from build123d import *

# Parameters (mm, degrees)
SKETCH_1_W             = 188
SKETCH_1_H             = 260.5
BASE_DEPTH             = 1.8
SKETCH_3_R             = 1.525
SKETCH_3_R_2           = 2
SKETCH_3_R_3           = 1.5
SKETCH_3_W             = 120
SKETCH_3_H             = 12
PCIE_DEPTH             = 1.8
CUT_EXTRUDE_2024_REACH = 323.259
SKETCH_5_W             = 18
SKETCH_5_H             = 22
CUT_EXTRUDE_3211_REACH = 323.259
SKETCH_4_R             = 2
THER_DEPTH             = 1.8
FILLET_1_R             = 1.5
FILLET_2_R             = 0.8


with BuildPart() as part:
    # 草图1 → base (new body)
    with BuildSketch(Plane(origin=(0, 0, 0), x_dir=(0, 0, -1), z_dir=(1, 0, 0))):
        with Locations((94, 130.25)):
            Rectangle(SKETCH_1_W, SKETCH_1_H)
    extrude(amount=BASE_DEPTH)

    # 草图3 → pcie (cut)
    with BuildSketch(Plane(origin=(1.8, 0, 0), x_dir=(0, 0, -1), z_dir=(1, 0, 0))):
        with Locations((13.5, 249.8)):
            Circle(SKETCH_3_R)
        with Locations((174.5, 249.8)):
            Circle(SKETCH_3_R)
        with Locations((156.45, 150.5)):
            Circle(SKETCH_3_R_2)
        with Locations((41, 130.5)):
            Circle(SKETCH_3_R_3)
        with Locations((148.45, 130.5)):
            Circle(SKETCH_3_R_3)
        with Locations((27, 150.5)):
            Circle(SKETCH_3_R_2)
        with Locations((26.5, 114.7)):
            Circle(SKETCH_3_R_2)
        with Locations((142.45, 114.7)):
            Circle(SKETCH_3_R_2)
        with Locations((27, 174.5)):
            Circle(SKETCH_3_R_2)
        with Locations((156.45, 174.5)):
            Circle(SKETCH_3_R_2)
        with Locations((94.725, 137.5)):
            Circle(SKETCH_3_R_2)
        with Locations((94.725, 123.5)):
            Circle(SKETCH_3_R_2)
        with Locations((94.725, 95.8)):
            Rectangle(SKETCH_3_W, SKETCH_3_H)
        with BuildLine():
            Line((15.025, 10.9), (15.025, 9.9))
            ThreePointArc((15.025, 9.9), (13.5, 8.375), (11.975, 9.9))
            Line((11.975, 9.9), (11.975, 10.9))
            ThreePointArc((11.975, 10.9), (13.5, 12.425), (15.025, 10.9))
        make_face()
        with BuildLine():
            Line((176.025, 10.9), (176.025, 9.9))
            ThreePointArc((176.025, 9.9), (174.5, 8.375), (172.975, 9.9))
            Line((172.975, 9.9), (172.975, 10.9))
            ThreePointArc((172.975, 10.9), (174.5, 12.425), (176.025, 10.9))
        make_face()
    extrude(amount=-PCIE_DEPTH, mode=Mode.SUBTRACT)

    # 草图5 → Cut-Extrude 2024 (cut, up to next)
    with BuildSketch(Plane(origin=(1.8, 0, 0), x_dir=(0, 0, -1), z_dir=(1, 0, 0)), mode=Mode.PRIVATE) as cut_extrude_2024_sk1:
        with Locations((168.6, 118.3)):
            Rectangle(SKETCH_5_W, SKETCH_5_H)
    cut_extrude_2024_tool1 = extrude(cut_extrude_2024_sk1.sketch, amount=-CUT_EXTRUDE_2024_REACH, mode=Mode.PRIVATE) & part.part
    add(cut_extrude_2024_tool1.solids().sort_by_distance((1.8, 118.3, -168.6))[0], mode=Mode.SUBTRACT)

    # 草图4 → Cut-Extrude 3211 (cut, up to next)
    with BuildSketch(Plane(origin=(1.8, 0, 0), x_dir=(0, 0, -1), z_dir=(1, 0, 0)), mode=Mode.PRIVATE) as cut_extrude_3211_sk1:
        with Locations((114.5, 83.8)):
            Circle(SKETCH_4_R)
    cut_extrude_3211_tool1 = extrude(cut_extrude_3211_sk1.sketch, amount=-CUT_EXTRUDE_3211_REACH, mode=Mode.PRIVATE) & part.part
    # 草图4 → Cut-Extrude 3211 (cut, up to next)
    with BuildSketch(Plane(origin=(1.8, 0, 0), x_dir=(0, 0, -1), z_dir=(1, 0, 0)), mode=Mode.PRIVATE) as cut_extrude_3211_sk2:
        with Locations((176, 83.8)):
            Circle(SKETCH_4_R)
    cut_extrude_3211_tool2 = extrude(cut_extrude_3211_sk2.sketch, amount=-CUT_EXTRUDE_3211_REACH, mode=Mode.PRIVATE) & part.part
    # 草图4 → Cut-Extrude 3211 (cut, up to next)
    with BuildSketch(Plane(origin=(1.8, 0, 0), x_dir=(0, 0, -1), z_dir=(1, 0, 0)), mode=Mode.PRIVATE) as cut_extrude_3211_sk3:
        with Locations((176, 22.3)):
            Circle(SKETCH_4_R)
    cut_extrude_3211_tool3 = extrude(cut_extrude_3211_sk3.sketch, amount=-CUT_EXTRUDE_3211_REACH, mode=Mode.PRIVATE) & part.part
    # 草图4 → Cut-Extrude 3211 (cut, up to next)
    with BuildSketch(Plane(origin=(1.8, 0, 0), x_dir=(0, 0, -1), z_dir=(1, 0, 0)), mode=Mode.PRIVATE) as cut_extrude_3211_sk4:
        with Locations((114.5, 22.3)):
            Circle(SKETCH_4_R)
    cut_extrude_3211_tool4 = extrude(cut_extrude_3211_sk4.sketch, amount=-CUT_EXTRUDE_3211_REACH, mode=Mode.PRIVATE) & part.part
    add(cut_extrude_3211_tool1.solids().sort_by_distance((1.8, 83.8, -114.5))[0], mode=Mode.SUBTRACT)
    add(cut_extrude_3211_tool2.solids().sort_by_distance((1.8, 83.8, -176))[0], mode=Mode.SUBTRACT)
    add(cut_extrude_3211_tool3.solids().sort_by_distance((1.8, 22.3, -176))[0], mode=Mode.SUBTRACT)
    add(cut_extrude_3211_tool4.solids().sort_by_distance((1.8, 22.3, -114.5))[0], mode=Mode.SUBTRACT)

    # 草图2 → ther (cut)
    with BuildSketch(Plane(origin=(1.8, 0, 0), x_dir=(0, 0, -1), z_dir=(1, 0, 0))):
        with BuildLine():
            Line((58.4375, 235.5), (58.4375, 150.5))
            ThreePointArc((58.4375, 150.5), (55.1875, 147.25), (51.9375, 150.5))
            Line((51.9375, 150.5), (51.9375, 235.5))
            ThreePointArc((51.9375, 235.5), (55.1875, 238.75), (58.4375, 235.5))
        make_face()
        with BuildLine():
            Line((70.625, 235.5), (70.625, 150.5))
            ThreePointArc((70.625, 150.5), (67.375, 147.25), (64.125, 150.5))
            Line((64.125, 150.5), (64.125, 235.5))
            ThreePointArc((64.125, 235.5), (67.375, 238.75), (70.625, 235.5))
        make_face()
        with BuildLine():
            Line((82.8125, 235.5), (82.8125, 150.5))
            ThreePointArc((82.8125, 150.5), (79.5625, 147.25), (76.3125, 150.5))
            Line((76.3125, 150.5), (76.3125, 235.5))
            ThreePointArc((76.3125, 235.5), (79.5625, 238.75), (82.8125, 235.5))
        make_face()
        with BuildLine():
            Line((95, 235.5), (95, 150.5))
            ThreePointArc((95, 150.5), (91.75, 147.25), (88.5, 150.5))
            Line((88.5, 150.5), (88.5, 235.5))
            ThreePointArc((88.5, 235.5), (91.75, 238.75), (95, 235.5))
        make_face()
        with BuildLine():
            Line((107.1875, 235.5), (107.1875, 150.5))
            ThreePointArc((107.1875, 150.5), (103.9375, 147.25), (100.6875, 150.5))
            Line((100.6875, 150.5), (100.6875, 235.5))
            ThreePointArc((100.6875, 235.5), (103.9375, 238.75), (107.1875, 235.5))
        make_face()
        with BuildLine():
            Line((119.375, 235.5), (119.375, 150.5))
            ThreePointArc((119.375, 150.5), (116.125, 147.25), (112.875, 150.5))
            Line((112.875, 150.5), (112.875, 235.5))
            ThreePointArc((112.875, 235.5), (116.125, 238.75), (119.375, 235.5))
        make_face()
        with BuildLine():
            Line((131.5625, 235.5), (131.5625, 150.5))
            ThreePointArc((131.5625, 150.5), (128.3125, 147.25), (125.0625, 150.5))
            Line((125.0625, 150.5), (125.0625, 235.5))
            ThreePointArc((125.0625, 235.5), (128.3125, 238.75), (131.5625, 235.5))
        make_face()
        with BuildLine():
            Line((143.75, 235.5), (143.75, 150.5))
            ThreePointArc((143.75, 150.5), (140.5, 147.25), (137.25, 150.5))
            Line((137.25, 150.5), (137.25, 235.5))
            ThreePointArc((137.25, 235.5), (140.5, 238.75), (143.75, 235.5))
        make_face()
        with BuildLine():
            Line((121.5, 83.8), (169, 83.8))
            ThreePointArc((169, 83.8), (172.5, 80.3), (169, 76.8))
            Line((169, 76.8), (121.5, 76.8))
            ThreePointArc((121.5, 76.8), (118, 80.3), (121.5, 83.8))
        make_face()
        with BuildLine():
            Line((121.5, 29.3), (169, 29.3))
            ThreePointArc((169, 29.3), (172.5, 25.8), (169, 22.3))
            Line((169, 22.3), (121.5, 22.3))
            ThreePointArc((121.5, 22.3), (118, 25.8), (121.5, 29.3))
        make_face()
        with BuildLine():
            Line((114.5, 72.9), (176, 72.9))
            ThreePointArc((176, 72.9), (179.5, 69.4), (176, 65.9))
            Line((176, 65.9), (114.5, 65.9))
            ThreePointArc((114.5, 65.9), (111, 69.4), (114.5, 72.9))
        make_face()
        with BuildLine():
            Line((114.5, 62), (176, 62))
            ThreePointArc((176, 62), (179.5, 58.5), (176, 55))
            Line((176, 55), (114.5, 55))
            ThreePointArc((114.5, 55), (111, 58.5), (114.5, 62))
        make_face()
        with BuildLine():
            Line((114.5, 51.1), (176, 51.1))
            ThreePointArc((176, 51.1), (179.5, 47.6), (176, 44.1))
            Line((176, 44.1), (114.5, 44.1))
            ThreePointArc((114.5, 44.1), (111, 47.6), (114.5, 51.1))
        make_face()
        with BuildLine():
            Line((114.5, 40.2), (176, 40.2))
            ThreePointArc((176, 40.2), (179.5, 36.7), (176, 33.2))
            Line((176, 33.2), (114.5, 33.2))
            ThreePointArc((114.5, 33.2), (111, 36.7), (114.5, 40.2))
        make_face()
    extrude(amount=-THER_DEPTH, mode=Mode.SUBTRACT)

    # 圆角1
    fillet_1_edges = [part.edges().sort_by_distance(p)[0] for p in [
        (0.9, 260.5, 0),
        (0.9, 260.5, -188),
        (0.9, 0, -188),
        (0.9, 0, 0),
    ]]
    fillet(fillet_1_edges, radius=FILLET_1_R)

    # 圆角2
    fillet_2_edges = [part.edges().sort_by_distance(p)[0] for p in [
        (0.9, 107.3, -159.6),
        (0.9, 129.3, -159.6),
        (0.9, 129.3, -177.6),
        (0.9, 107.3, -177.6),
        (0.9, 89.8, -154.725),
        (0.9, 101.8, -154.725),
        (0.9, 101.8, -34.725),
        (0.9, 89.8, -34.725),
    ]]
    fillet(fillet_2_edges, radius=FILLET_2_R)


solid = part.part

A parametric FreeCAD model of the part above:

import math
import FreeCAD as App
import Part
import Sketcher
from FreeCAD import Vector
Q = App.Units.Quantity


def edges_at(feature, points):
    """Names of the edges that pass closest to the given points."""
    edges = feature.Shape.Edges
    near = lambda p: min(range(len(edges)), key=lambda i: edges[i].distToShape(Part.Vertex(*p))[0])
    return sorted({f"Edge{near(p) + 1}" for p in points})

doc = App.newDocument("Part")
body = doc.addObject("PartDesign::Body", "Body")

sketch1 = doc.addObject("Sketcher::SketchObject", "Sketch")
body.addObject(sketch1)
sketch1.AttachmentSupport = (doc.YZ_Plane, [""])
sketch1.MapMode = "FlatFace"
sketch1.addGeometry(Part.LineSegment(Vector(260, 0, 0), Vector(0, 0, 0)), False)
sketch1.addGeometry(Part.LineSegment(Vector(0, 0, 0), Vector(0, -188, 0)), False)
sketch1.addGeometry(Part.LineSegment(Vector(0, -188, 0), Vector(260, -188, 0)), False)
sketch1.addGeometry(Part.LineSegment(Vector(260, -188, 0), Vector(260, 0, 0)), False)
sketch1.addConstraint(Sketcher.Constraint("Coincident", 0, 2, 1, 1))
sketch1.addConstraint(Sketcher.Constraint("Coincident", 1, 2, 2, 1))
sketch1.addConstraint(Sketcher.Constraint("Coincident", 2, 2, 3, 1))
sketch1.addConstraint(Sketcher.Constraint("Coincident", 3, 2, 0, 1))
sketch1.addConstraint(Sketcher.Constraint("Horizontal", 0))
sketch1.addConstraint(Sketcher.Constraint("Vertical", 1))
sketch1.addConstraint(Sketcher.Constraint("Horizontal", 2))
sketch1.addConstraint(Sketcher.Constraint("Vertical", 3))
sketch1.addConstraint(Sketcher.Constraint("Coincident", 0, 2, -1, 1))
sketch1.addConstraint(Sketcher.Constraint("DistanceY", 1, 2, 1, 1, Q("188 mm")))
sketch1.addConstraint(Sketcher.Constraint("DistanceX", 0, 2, 0, 1, Q("260.5 mm")))
pad1 = doc.addObject("PartDesign::Pad", "Pad")
body.addObject(pad1)
pad1.Profile = sketch1
pad1.Length = 1.8

sketch2 = doc.addObject("Sketcher::SketchObject", "Sketch001")
body.addObject(sketch2)
sketch2.AttachmentSupport = (doc.YZ_Plane, [""])
sketch2.MapMode = "FlatFace"
sketch2.AttachmentOffset = App.Placement(Vector(0, 0, 1.8), App.Rotation())
sketch2.addGeometry(Part.Circle(Vector(249.8, -13.5, 0), Vector(0, 0, 1), 1.5), False)
sketch2.addGeometry(Part.Circle(Vector(249.8, -174.5, 0), Vector(0, 0, 1), 1.5), False)
sketch2.addGeometry(Part.Circle(Vector(150.5, -156.4, 0), Vector(0, 0, 1), 2), False)
sketch2.addGeometry(Part.Circle(Vector(130.5, -41, 0), Vector(0, 0, 1), 1.5), False)
sketch2.addGeometry(Part.Circle(Vector(130.5, -148.4, 0), Vector(0, 0, 1), 1.5), False)
sketch2.addGeometry(Part.Circle(Vector(150.5, -27, 0), Vector(0, 0, 1), 2), False)
sketch2.addGeometry(Part.Circle(Vector(114.7, -26.5, 0), Vector(0, 0, 1), 2), False)
sketch2.addGeometry(Part.Circle(Vector(114.7, -142.4, 0), Vector(0, 0, 1), 2), False)
sketch2.addGeometry(Part.Circle(Vector(174.5, -27, 0), Vector(0, 0, 1), 2), False)
sketch2.addGeometry(Part.Circle(Vector(174.5, -156.4, 0), Vector(0, 0, 1), 2), False)
sketch2.addGeometry(Part.Circle(Vector(137.5, -94.7, 0), Vector(0, 0, 1), 2), False)
sketch2.addGeometry(Part.Circle(Vector(123.5, -94.7, 0), Vector(0, 0, 1), 2), False)
sketch2.addGeometry(Part.LineSegment(Vector(101.8, -34.7, 0), Vector(89.8, -34.7, 0)), False)
sketch2.addGeometry(Part.LineSegment(Vector(89.8, -34.7, 0), Vector(89.8, -154.7, 0)), False)
sketch2.addGeometry(Part.LineSegment(Vector(89.8, -154.7, 0), Vector(101.8, -154.7, 0)), False)
sketch2.addGeometry(Part.LineSegment(Vector(101.8, -154.7, 0), Vector(101.8, -34.7, 0)), False)
sketch2.addGeometry(Part.LineSegment(Vector(9.9, -15, 0), Vector(10.9, -15, 0)), False)
sketch2.addGeometry(Part.ArcOfCircle(Part.Circle(Vector(10.9, -13.5, 0), Vector(0, 0, 1), 1.5), math.radians(-90), math.radians(90)), False)
sketch2.addGeometry(Part.LineSegment(Vector(10.9, -12, 0), Vector(9.9, -12, 0)), False)
sketch2.addGeometry(Part.ArcOfCircle(Part.Circle(Vector(9.9, -13.5, 0), Vector(0, 0, 1), 1.5), math.radians(90), math.radians(270)), False)
sketch2.addGeometry(Part.LineSegment(Vector(9.9, -176, 0), Vector(10.9, -176, 0)), False)
sketch2.addGeometry(Part.ArcOfCircle(Part.Circle(Vector(10.9, -174.5, 0), Vector(0, 0, 1), 1.5), math.radians(-90), math.radians(90)), False)
sketch2.addGeometry(Part.LineSegment(Vector(10.9, -173, 0), Vector(9.9, -173, 0)), False)
sketch2.addGeometry(Part.ArcOfCircle(Part.Circle(Vector(9.9, -174.5, 0), Vector(0, 0, 1), 1.5), math.radians(90), math.radians(270)), False)
sketch2.addConstraint(Sketcher.Constraint("Coincident", 12, 2, 13, 1))
sketch2.addConstraint(Sketcher.Constraint("Coincident", 13, 2, 14, 1))
sketch2.addConstraint(Sketcher.Constraint("Coincident", 14, 2, 15, 1))
sketch2.addConstraint(Sketcher.Constraint("Coincident", 15, 2, 12, 1))
sketch2.addConstraint(Sketcher.Constraint("Tangent", 16, 2, 17, 1))
sketch2.addConstraint(Sketcher.Constraint("Tangent", 17, 2, 18, 1))
sketch2.addConstraint(Sketcher.Constraint("Tangent", 18, 2, 19, 1))
sketch2.addConstraint(Sketcher.Constraint("Tangent", 19, 2, 16, 1))
sketch2.addConstraint(Sketcher.Constraint("Tangent", 20, 2, 21, 1))
sketch2.addConstraint(Sketcher.Constraint("Tangent", 21, 2, 22, 1))
sketch2.addConstraint(Sketcher.Constraint("Tangent", 22, 2, 23, 1))
sketch2.addConstraint(Sketcher.Constraint("Tangent", 23, 2, 20, 1))
sketch2.addConstraint(Sketcher.Constraint("Horizontal", 12))
sketch2.addConstraint(Sketcher.Constraint("Vertical", 13))
sketch2.addConstraint(Sketcher.Constraint("Horizontal", 14))
sketch2.addConstraint(Sketcher.Constraint("Vertical", 15))
sketch2.addConstraint(Sketcher.Constraint("Horizontal", 16))
sketch2.addConstraint(Sketcher.Constraint("Horizontal", 18))
sketch2.addConstraint(Sketcher.Constraint("Horizontal", 20))
sketch2.addConstraint(Sketcher.Constraint("Horizontal", 22))
sketch2.addConstraint(Sketcher.Constraint("Equal", 0, 1))
sketch2.addConstraint(Sketcher.Constraint("Equal", 3, 4))
sketch2.addConstraint(Sketcher.Constraint("Equal", 2, 5))
sketch2.addConstraint(Sketcher.Constraint("Equal", 5, 6))
sketch2.addConstraint(Sketcher.Constraint("Equal", 6, 7))
sketch2.addConstraint(Sketcher.Constraint("Equal", 7, 8))
sketch2.addConstraint(Sketcher.Constraint("Equal", 8, 9))
sketch2.addConstraint(Sketcher.Constraint("Equal", 9, 10))
sketch2.addConstraint(Sketcher.Constraint("Equal", 10, 11))
sketch2.addConstraint(Sketcher.Constraint("Equal", 1, 17))
sketch2.addConstraint(Sketcher.Constraint("Equal", 19, 21))
sketch2.addConstraint(Sketcher.Constraint("Horizontal", 5, 3, 8, 3))
sketch2.addConstraint(Sketcher.Constraint("Horizontal", 2, 3, 9, 3))
sketch2.addConstraint(Sketcher.Constraint("Horizontal", 10, 3, 11, 3))
sketch2.addConstraint(Sketcher.Constraint("Horizontal", 0, 3, 17, 3))
sketch2.addConstraint(Sketcher.Constraint("Horizontal", 1, 3, 21, 3))
sketch2.addConstraint(Sketcher.Constraint("Vertical", 0, 3, 1, 3))
sketch2.addConstraint(Sketcher.Constraint("Vertical", 3, 3, 4, 3))
sketch2.addConstraint(Sketcher.Constraint("Vertical", 2, 3, 5, 3))
sketch2.addConstraint(Sketcher.Constraint("Vertical", 6, 3, 7, 3))
sketch2.addConstraint(Sketcher.Constraint("Vertical", 8, 3, 9, 3))
sketch2.addConstraint(Sketcher.Constraint("Vertical", 17, 3, 21, 3))
sketch2.addConstraint(Sketcher.Constraint("Vertical", 19, 3, 23, 3))
sketch2.addConstraint(Sketcher.Constraint("Diameter", 2, Q("4 mm")))
sketch2.addConstraint(Sketcher.Constraint("Diameter", 3, Q("3 mm")))
sketch2.addConstraint(Sketcher.Constraint("Diameter", 0, Q("3.05 mm")))
sketch2.addConstraint(Sketcher.Constraint("DistanceX", 12, 2, 12, 1, Q("12 mm")))
sketch2.addConstraint(Sketcher.Constraint("DistanceX", 16, 1, 16, 2, Q("1 mm")))
sketch2.addConstraint(Sketcher.Constraint("DistanceY", 13, 2, 13, 1, Q("120 mm")))
sketch2.addConstraint(Sketcher.Constraint("DistanceY", 3, 3, -1, 1, Q("41 mm")))
sketch2.addConstraint(Sketcher.Constraint("DistanceY", 5, 3, -1, 1, Q("27 mm")))
sketch2.addConstraint(Sketcher.Constraint("DistanceY", 1, 3, 0, 3, Q("161 mm")))
sketch2.addConstraint(Sketcher.Constraint("DistanceX", 3, 3, 2, 3, Q("20 mm")))
sketch2.addConstraint(Sketcher.Constraint("DistanceY", 2, 3, 4, 3, Q("8 mm")))
sketch2.addConstraint(Sketcher.Constraint("DistanceY", 6, 3, 0, 3, Q("13 mm")))
sketch2.addConstraint(Sketcher.Constraint("DistanceY", 4, 3, 7, 3, Q("6 mm")))
sketch2.addConstraint(Sketcher.Constraint("DistanceX", 5, 3, 8, 3, Q("24 mm")))
sketch2.addConstraint(Sketcher.Constraint("DistanceX", 3, 3, 10, 3, Q("7 mm")))
sketch2.addConstraint(Sketcher.Constraint("DistanceX", 11, 3, 10, 3, Q("14 mm")))
sketch2.addConstraint(Sketcher.Constraint("DistanceY", 11, 3, 12, 2, Q("60 mm")))
sketch2.addConstraint(Sketcher.Constraint("DistanceX", -1, 1, 0, 3, Q("249.8 mm")))
sketch2.addConstraint(Sketcher.Constraint("DistanceY", 0, 3, -1, 1, Q("13.5 mm")))
sketch2.addConstraint(Sketcher.Constraint("DistanceX", -1, 1, 2, 3, Q("150.5 mm")))
sketch2.addConstraint(Sketcher.Constraint("DistanceX", -1, 1, 6, 3, Q("114.7 mm")))
sketch2.addConstraint(Sketcher.Constraint("DistanceX", -1, 1, 17, 3, Q("10.9 mm")))
sketch2.addConstraint(Sketcher.Constraint("DistanceX", -1, 1, 12, 2, Q("89.8 mm")))
sketch2.addConstraint(Sketcher.Constraint("DistanceY", 12, 2, 16, 2, Q("19.7 mm")))
sketch2.addConstraint(Sketcher.Constraint("DistanceY", 2, 3, -1, 1, Q("156.45 mm")))
pocket1 = doc.addObject("PartDesign::Pocket", "Pocket")
body.addObject(pocket1)
pocket1.Profile = sketch2
pocket1.Length = 1.8

sketch3 = doc.addObject("Sketcher::SketchObject", "Sketch002")
body.addObject(sketch3)
sketch3.AttachmentSupport = (doc.YZ_Plane, [""])
sketch3.MapMode = "FlatFace"
sketch3.AttachmentOffset = App.Placement(Vector(0, 0, 1.8), App.Rotation())
sketch3.addGeometry(Part.LineSegment(Vector(129, -160, 0), Vector(107, -160, 0)), False)
sketch3.addGeometry(Part.LineSegment(Vector(107, -160, 0), Vector(107, -178, 0)), False)
sketch3.addGeometry(Part.LineSegment(Vector(107, -178, 0), Vector(129, -178, 0)), False)
sketch3.addGeometry(Part.LineSegment(Vector(129, -178, 0), Vector(129, -160, 0)), False)
sketch3.addConstraint(Sketcher.Constraint("Coincident", 0, 2, 1, 1))
sketch3.addConstraint(Sketcher.Constraint("Coincident", 1, 2, 2, 1))
sketch3.addConstraint(Sketcher.Constraint("Coincident", 2, 2, 3, 1))
sketch3.addConstraint(Sketcher.Constraint("Coincident", 3, 2, 0, 1))
sketch3.addConstraint(Sketcher.Constraint("Horizontal", 0))
sketch3.addConstraint(Sketcher.Constraint("Vertical", 1))
sketch3.addConstraint(Sketcher.Constraint("Horizontal", 2))
sketch3.addConstraint(Sketcher.Constraint("Vertical", 3))
sketch3.addConstraint(Sketcher.Constraint("DistanceX", 0, 2, 0, 1, Q("22 mm")))
sketch3.addConstraint(Sketcher.Constraint("DistanceY", 1, 2, 1, 1, Q("18 mm")))
sketch3.addConstraint(Sketcher.Constraint("DistanceX", -1, 1, 0, 2, Q("107.3 mm")))
sketch3.addConstraint(Sketcher.Constraint("DistanceY", 0, 2, -1, 1, Q("159.6 mm")))
pocket2 = doc.addObject("PartDesign::Pocket", "Pocket001")
body.addObject(pocket2)
pocket2.Profile = sketch3
pocket2.Type = "UpToFirst"

sketch4 = doc.addObject("Sketcher::SketchObject", "Sketch003")
body.addObject(sketch4)
sketch4.AttachmentSupport = (doc.YZ_Plane, [""])
sketch4.MapMode = "FlatFace"
sketch4.AttachmentOffset = App.Placement(Vector(0, 0, 1.8), App.Rotation())
sketch4.addGeometry(Part.Circle(Vector(83.8, -114.5, 0), Vector(0, 0, 1), 2), False)
sketch4.addConstraint(Sketcher.Constraint("Diameter", 0, Q("4 mm")))
sketch4.addConstraint(Sketcher.Constraint("DistanceX", -1, 1, 0, 3, Q("83.8 mm")))
sketch4.addConstraint(Sketcher.Constraint("DistanceY", 0, 3, -1, 1, Q("114.5 mm")))
pocket3 = doc.addObject("PartDesign::Pocket", "Pocket002")
body.addObject(pocket3)
pocket3.Profile = sketch4
pocket3.Type = "UpToFirst"

sketch5 = doc.addObject("Sketcher::SketchObject", "Sketch004")
body.addObject(sketch5)
sketch5.AttachmentSupport = (doc.YZ_Plane, [""])
sketch5.MapMode = "FlatFace"
sketch5.AttachmentOffset = App.Placement(Vector(0, 0, 1.8), App.Rotation())
sketch5.addGeometry(Part.Circle(Vector(83.8, -176, 0), Vector(0, 0, 1), 2), False)
sketch5.addConstraint(Sketcher.Constraint("Diameter", 0, Q("4 mm")))
sketch5.addConstraint(Sketcher.Constraint("DistanceY", 0, 3, -1, 1, Q("176 mm")))
sketch5.addConstraint(Sketcher.Constraint("DistanceX", -1, 1, 0, 3, Q("83.8 mm")))
pocket4 = doc.addObject("PartDesign::Pocket", "Pocket003")
body.addObject(pocket4)
pocket4.Profile = sketch5
pocket4.Type = "UpToFirst"

sketch6 = doc.addObject("Sketcher::SketchObject", "Sketch005")
body.addObject(sketch6)
sketch6.AttachmentSupport = (doc.YZ_Plane, [""])
sketch6.MapMode = "FlatFace"
sketch6.AttachmentOffset = App.Placement(Vector(0, 0, 1.8), App.Rotation())
sketch6.addGeometry(Part.Circle(Vector(22.3, -176, 0), Vector(0, 0, 1), 2), False)
sketch6.addConstraint(Sketcher.Constraint("Diameter", 0, Q("4 mm")))
sketch6.addConstraint(Sketcher.Constraint("DistanceY", 0, 3, -1, 1, Q("176 mm")))
sketch6.addConstraint(Sketcher.Constraint("DistanceX", -1, 1, 0, 3, Q("22.3 mm")))
pocket5 = doc.addObject("PartDesign::Pocket", "Pocket004")
body.addObject(pocket5)
pocket5.Profile = sketch6
pocket5.Type = "UpToFirst"

sketch7 = doc.addObject("Sketcher::SketchObject", "Sketch006")
body.addObject(sketch7)
sketch7.AttachmentSupport = (doc.YZ_Plane, [""])
sketch7.MapMode = "FlatFace"
sketch7.AttachmentOffset = App.Placement(Vector(0, 0, 1.8), App.Rotation())
sketch7.addGeometry(Part.Circle(Vector(22.3, -114.5, 0), Vector(0, 0, 1), 2), False)
sketch7.addConstraint(Sketcher.Constraint("Diameter", 0, Q("4 mm")))
sketch7.addConstraint(Sketcher.Constraint("DistanceX", -1, 1, 0, 3, Q("22.3 mm")))
sketch7.addConstraint(Sketcher.Constraint("DistanceY", 0, 3, -1, 1, Q("114.5 mm")))
pocket6 = doc.addObject("PartDesign::Pocket", "Pocket005")
body.addObject(pocket6)
pocket6.Profile = sketch7
pocket6.Type = "UpToFirst"

sketch8 = doc.addObject("Sketcher::SketchObject", "Sketch007")
body.addObject(sketch8)
sketch8.AttachmentSupport = (doc.YZ_Plane, [""])
sketch8.MapMode = "FlatFace"
sketch8.AttachmentOffset = App.Placement(Vector(0, 0, 1.8), App.Rotation())
sketch8.addGeometry(Part.LineSegment(Vector(150.5, -58.4, 0), Vector(235.5, -58.4, 0)), False)
sketch8.addGeometry(Part.ArcOfCircle(Part.Circle(Vector(235.5, -55.2, 0), Vector(0, 0, 1), 3.2), math.radians(-90), math.radians(90)), False)
sketch8.addGeometry(Part.LineSegment(Vector(235.5, -51.9, 0), Vector(150.5, -51.9, 0)), False)
sketch8.addGeometry(Part.ArcOfCircle(Part.Circle(Vector(150.5, -55.2, 0), Vector(0, 0, 1), 3.2), math.radians(90), math.radians(270)), False)
sketch8.addGeometry(Part.LineSegment(Vector(150.5, -70.6, 0), Vector(235.5, -70.6, 0)), False)
sketch8.addGeometry(Part.ArcOfCircle(Part.Circle(Vector(235.5, -67.4, 0), Vector(0, 0, 1), 3.2), math.radians(-90), math.radians(90)), False)
sketch8.addGeometry(Part.LineSegment(Vector(235.5, -64.1, 0), Vector(150.5, -64.1, 0)), False)
sketch8.addGeometry(Part.ArcOfCircle(Part.Circle(Vector(150.5, -67.4, 0), Vector(0, 0, 1), 3.2), math.radians(90), math.radians(270)), False)
sketch8.addGeometry(Part.LineSegment(Vector(150.5, -82.8, 0), Vector(235.5, -82.8, 0)), False)
sketch8.addGeometry(Part.ArcOfCircle(Part.Circle(Vector(235.5, -79.6, 0), Vector(0, 0, 1), 3.2), math.radians(-90), math.radians(90)), False)
sketch8.addGeometry(Part.LineSegment(Vector(235.5, -76.3, 0), Vector(150.5, -76.3, 0)), False)
sketch8.addGeometry(Part.ArcOfCircle(Part.Circle(Vector(150.5, -79.6, 0), Vector(0, 0, 1), 3.2), math.radians(90), math.radians(270)), False)
sketch8.addGeometry(Part.LineSegment(Vector(150.5, -95, 0), Vector(235.5, -95, 0)), False)
sketch8.addGeometry(Part.ArcOfCircle(Part.Circle(Vector(235.5, -91.8, 0), Vector(0, 0, 1), 3.2), math.radians(-90), math.radians(90)), False)
sketch8.addGeometry(Part.LineSegment(Vector(235.5, -88.5, 0), Vector(150.5, -88.5, 0)), False)
sketch8.addGeometry(Part.ArcOfCircle(Part.Circle(Vector(150.5, -91.8, 0), Vector(0, 0, 1), 3.2), math.radians(90), math.radians(270)), False)
sketch8.addGeometry(Part.LineSegment(Vector(150.5, -107.2, 0), Vector(235.5, -107.2, 0)), False)
sketch8.addGeometry(Part.ArcOfCircle(Part.Circle(Vector(235.5, -103.9, 0), Vector(0, 0, 1), 3.2), math.radians(-90), math.radians(90)), False)
sketch8.addGeometry(Part.LineSegment(Vector(235.5, -100.7, 0), Vector(150.5, -100.7, 0)), False)
sketch8.addGeometry(Part.ArcOfCircle(Part.Circle(Vector(150.5, -103.9, 0), Vector(0, 0, 1), 3.2), math.radians(90), math.radians(270)), False)
sketch8.addGeometry(Part.LineSegment(Vector(150.5, -119.4, 0), Vector(235.5, -119.4, 0)), False)
sketch8.addGeometry(Part.ArcOfCircle(Part.Circle(Vector(235.5, -116.1, 0), Vector(0, 0, 1), 3.2), math.radians(-90), math.radians(90)), False)
sketch8.addGeometry(Part.LineSegment(Vector(235.5, -112.9, 0), Vector(150.5, -112.9, 0)), False)
sketch8.addGeometry(Part.ArcOfCircle(Part.Circle(Vector(150.5, -116.1, 0), Vector(0, 0, 1), 3.2), math.radians(90), math.radians(270)), False)
sketch8.addGeometry(Part.LineSegment(Vector(150.5, -131.6, 0), Vector(235.5, -131.6, 0)), False)
sketch8.addGeometry(Part.ArcOfCircle(Part.Circle(Vector(235.5, -128.3, 0), Vector(0, 0, 1), 3.2), math.radians(-90), math.radians(90)), False)
sketch8.addGeometry(Part.LineSegment(Vector(235.5, -125.1, 0), Vector(150.5, -125.1, 0)), False)
sketch8.addGeometry(Part.ArcOfCircle(Part.Circle(Vector(150.5, -128.3, 0), Vector(0, 0, 1), 3.2), math.radians(90), math.radians(270)), False)
sketch8.addGeometry(Part.LineSegment(Vector(150.5, -143.8, 0), Vector(235.5, -143.8, 0)), False)
sketch8.addGeometry(Part.ArcOfCircle(Part.Circle(Vector(235.5, -140.5, 0), Vector(0, 0, 1), 3.2), math.radians(-90), math.radians(90)), False)
sketch8.addGeometry(Part.LineSegment(Vector(235.5, -137.2, 0), Vector(150.5, -137.2, 0)), False)
sketch8.addGeometry(Part.ArcOfCircle(Part.Circle(Vector(150.5, -140.5, 0), Vector(0, 0, 1), 3.2), math.radians(90), math.radians(270)), False)
sketch8.addGeometry(Part.LineSegment(Vector(83.8, -169, 0), Vector(83.8, -121.5, 0)), False)
sketch8.addGeometry(Part.ArcOfCircle(Part.Circle(Vector(80.3, -121.5, 0), Vector(0, 0, 1), 3.5), math.radians(0), math.radians(180)), False)
sketch8.addGeometry(Part.LineSegment(Vector(76.8, -121.5, 0), Vector(76.8, -169, 0)), False)
sketch8.addGeometry(Part.ArcOfCircle(Part.Circle(Vector(80.3, -169, 0), Vector(0, 0, 1), 3.5), math.radians(180), math.radians(360)), False)
sketch8.addGeometry(Part.LineSegment(Vector(29.3, -169, 0), Vector(29.3, -121.5, 0)), False)
sketch8.addGeometry(Part.ArcOfCircle(Part.Circle(Vector(25.8, -121.5, 0), Vector(0, 0, 1), 3.5), math.radians(0), math.radians(180)), False)
sketch8.addGeometry(Part.LineSegment(Vector(22.3, -121.5, 0), Vector(22.3, -169, 0)), False)
sketch8.addGeometry(Part.ArcOfCircle(Part.Circle(Vector(25.8, -169, 0), Vector(0, 0, 1), 3.5), math.radians(180), math.radians(360)), False)
sketch8.addGeometry(Part.LineSegment(Vector(72.9, -176, 0), Vector(72.9, -114.5, 0)), False)
sketch8.addGeometry(Part.ArcOfCircle(Part.Circle(Vector(69.4, -114.5, 0), Vector(0, 0, 1), 3.5), math.radians(0), math.radians(180)), False)
sketch8.addGeometry(Part.LineSegment(Vector(65.9, -114.5, 0), Vector(65.9, -176, 0)), False)
sketch8.addGeometry(Part.ArcOfCircle(Part.Circle(Vector(69.4, -176, 0), Vector(0, 0, 1), 3.5), math.radians(180), math.radians(360)), False)
sketch8.addGeometry(Part.LineSegment(Vector(62, -176, 0), Vector(62, -114.5, 0)), False)
sketch8.addGeometry(Part.ArcOfCircle(Part.Circle(Vector(58.5, -114.5, 0), Vector(0, 0, 1), 3.5), math.radians(0), math.radians(180)), False)
sketch8.addGeometry(Part.LineSegment(Vector(55, -114.5, 0), Vector(55, -176, 0)), False)
sketch8.addGeometry(Part.ArcOfCircle(Part.Circle(Vector(58.5, -176, 0), Vector(0, 0, 1), 3.5), math.radians(180), math.radians(360)), False)
sketch8.addGeometry(Part.LineSegment(Vector(51.1, -176, 0), Vector(51.1, -114.5, 0)), False)
sketch8.addGeometry(Part.ArcOfCircle(Part.Circle(Vector(47.6, -114.5, 0), Vector(0, 0, 1), 3.5), math.radians(0), math.radians(180)), False)
sketch8.addGeometry(Part.LineSegment(Vector(44.1, -114.5, 0), Vector(44.1, -176, 0)), False)
sketch8.addGeometry(Part.ArcOfCircle(Part.Circle(Vector(47.6, -176, 0), Vector(0, 0, 1), 3.5), math.radians(180), math.radians(360)), False)
sketch8.addGeometry(Part.LineSegment(Vector(40.2, -176, 0), Vector(40.2, -114.5, 0)), False)
sketch8.addGeometry(Part.ArcOfCircle(Part.Circle(Vector(36.7, -114.5, 0), Vector(0, 0, 1), 3.5), math.radians(0), math.radians(180)), False)
sketch8.addGeometry(Part.LineSegment(Vector(33.2, -114.5, 0), Vector(33.2, -176, 0)), False)
sketch8.addGeometry(Part.ArcOfCircle(Part.Circle(Vector(36.7, -176, 0), Vector(0, 0, 1), 3.5), math.radians(180), math.radians(360)), False)
sketch8.addConstraint(Sketcher.Constraint("Tangent", 0, 2, 1, 1))
sketch8.addConstraint(Sketcher.Constraint("Tangent", 1, 2, 2, 1))
sketch8.addConstraint(Sketcher.Constraint("Tangent", 2, 2, 3, 1))
sketch8.addConstraint(Sketcher.Constraint("Tangent", 3, 2, 0, 1))
sketch8.addConstraint(Sketcher.Constraint("Tangent", 4, 2, 5, 1))
sketch8.addConstraint(Sketcher.Constraint("Tangent", 5, 2, 6, 1))
sketch8.addConstraint(Sketcher.Constraint("Tangent", 6, 2, 7, 1))
sketch8.addConstraint(Sketcher.Constraint("Tangent", 7, 2, 4, 1))
sketch8.addConstraint(Sketcher.Constraint("Tangent", 8, 2, 9, 1))
sketch8.addConstraint(Sketcher.Constraint("Tangent", 9, 2, 10, 1))
sketch8.addConstraint(Sketcher.Constraint("Tangent", 10, 2, 11, 1))
sketch8.addConstraint(Sketcher.Constraint("Tangent", 11, 2, 8, 1))
sketch8.addConstraint(Sketcher.Constraint("Tangent", 12, 2, 13, 1))
sketch8.addConstraint(Sketcher.Constraint("Tangent", 13, 2, 14, 1))
sketch8.addConstraint(Sketcher.Constraint("Tangent", 14, 2, 15, 1))
sketch8.addConstraint(Sketcher.Constraint("Tangent", 15, 2, 12, 1))
sketch8.addConstraint(Sketcher.Constraint("Tangent", 16, 2, 17, 1))
sketch8.addConstraint(Sketcher.Constraint("Tangent", 17, 2, 18, 1))
sketch8.addConstraint(Sketcher.Constraint("Tangent", 18, 2, 19, 1))
sketch8.addConstraint(Sketcher.Constraint("Tangent", 19, 2, 16, 1))
sketch8.addConstraint(Sketcher.Constraint("Tangent", 20, 2, 21, 1))
sketch8.addConstraint(Sketcher.Constraint("Tangent", 21, 2, 22, 1))
sketch8.addConstraint(Sketcher.Constraint("Tangent", 22, 2, 23, 1))
sketch8.addConstraint(Sketcher.Constraint("Tangent", 23, 2, 20, 1))
sketch8.addConstraint(Sketcher.Constraint("Tangent", 24, 2, 25, 1))
sketch8.addConstraint(Sketcher.Constraint("Tangent", 25, 2, 26, 1))
sketch8.addConstraint(Sketcher.Constraint("Tangent", 26, 2, 27, 1))
sketch8.addConstraint(Sketcher.Constraint("Tangent", 27, 2, 24, 1))
sketch8.addConstraint(Sketcher.Constraint("Tangent", 28, 2, 29, 1))
sketch8.addConstraint(Sketcher.Constraint("Tangent", 29, 2, 30, 1))
sketch8.addConstraint(Sketcher.Constraint("Tangent", 30, 2, 31, 1))
sketch8.addConstraint(Sketcher.Constraint("Tangent", 31, 2, 28, 1))
sketch8.addConstraint(Sketcher.Constraint("Tangent", 32, 2, 33, 1))
sketch8.addConstraint(Sketcher.Constraint("Tangent", 33, 2, 34, 1))
sketch8.addConstraint(Sketcher.Constraint("Tangent", 34, 2, 35, 1))
sketch8.addConstraint(Sketcher.Constraint("Tangent", 35, 2, 32, 1))
sketch8.addConstraint(Sketcher.Constraint("Tangent", 36, 2, 37, 1))
sketch8.addConstraint(Sketcher.Constraint("Tangent", 37, 2, 38, 1))
sketch8.addConstraint(Sketcher.Constraint("Tangent", 38, 2, 39, 1))
sketch8.addConstraint(Sketcher.Constraint("Tangent", 39, 2, 36, 1))
sketch8.addConstraint(Sketcher.Constraint("Tangent", 40, 2, 41, 1))
sketch8.addConstraint(Sketcher.Constraint("Tangent", 41, 2, 42, 1))
sketch8.addConstraint(Sketcher.Constraint("Tangent", 42, 2, 43, 1))
sketch8.addConstraint(Sketcher.Constraint("Tangent", 43, 2, 40, 1))
sketch8.addConstraint(Sketcher.Constraint("Tangent", 44, 2, 45, 1))
sketch8.addConstraint(Sketcher.Constraint("Tangent", 45, 2, 46, 1))
sketch8.addConstraint(Sketcher.Constraint("Tangent", 46, 2, 47, 1))
sketch8.addConstraint(Sketcher.Constraint("Tangent", 47, 2, 44, 1))
sketch8.addConstraint(Sketcher.Constraint("Tangent", 48, 2, 49, 1))
sketch8.addConstraint(Sketcher.Constraint("Tangent", 49, 2, 50, 1))
sketch8.addConstraint(Sketcher.Constraint("Tangent", 50, 2, 51, 1))
sketch8.addConstraint(Sketcher.Constraint("Tangent", 51, 2, 48, 1))
sketch8.addConstraint(Sketcher.Constraint("Tangent", 52, 2, 53, 1))
sketch8.addConstraint(Sketcher.Constraint("Tangent", 53, 2, 54, 1))
sketch8.addConstraint(Sketcher.Constraint("Tangent", 54, 2, 55, 1))
sketch8.addConstraint(Sketcher.Constraint("Tangent", 55, 2, 52, 1))
sketch8.addConstraint(Sketcher.Constraint("Horizontal", 0))
sketch8.addConstraint(Sketcher.Constraint("Horizontal", 2))
sketch8.addConstraint(Sketcher.Constraint("Horizontal", 4))
sketch8.addConstraint(Sketcher.Constraint("Horizontal", 6))
sketch8.addConstraint(Sketcher.Constraint("Horizontal", 8))
sketch8.addConstraint(Sketcher.Constraint("Horizontal", 10))
sketch8.addConstraint(Sketcher.Constraint("Horizontal", 12))
sketch8.addConstraint(Sketcher.Constraint("Horizontal", 14))
sketch8.addConstraint(Sketcher.Constraint("Horizontal", 16))
sketch8.addConstraint(Sketcher.Constraint("Horizontal", 18))
sketch8.addConstraint(Sketcher.Constraint("Horizontal", 20))
sketch8.addConstraint(Sketcher.Constraint("Horizontal", 22))
sketch8.addConstraint(Sketcher.Constraint("Horizontal", 24))
sketch8.addConstraint(Sketcher.Constraint("Horizontal", 26))
sketch8.addConstraint(Sketcher.Constraint("Horizontal", 28))
sketch8.addConstraint(Sketcher.Constraint("Horizontal", 30))
sketch8.addConstraint(Sketcher.Constraint("Vertical", 32))
sketch8.addConstraint(Sketcher.Constraint("Vertical", 34))
sketch8.addConstraint(Sketcher.Constraint("Vertical", 36))
sketch8.addConstraint(Sketcher.Constraint("Vertical", 38))
sketch8.addConstraint(Sketcher.Constraint("Vertical", 40))
sketch8.addConstraint(Sketcher.Constraint("Vertical", 42))
sketch8.addConstraint(Sketcher.Constraint("Vertical", 44))
sketch8.addConstraint(Sketcher.Constraint("Vertical", 46))
sketch8.addConstraint(Sketcher.Constraint("Vertical", 48))
sketch8.addConstraint(Sketcher.Constraint("Vertical", 50))
sketch8.addConstraint(Sketcher.Constraint("Vertical", 52))
sketch8.addConstraint(Sketcher.Constraint("Vertical", 54))
sketch8.addConstraint(Sketcher.Constraint("Equal", 3, 5))
sketch8.addConstraint(Sketcher.Constraint("Equal", 7, 9))
sketch8.addConstraint(Sketcher.Constraint("Equal", 11, 13))
sketch8.addConstraint(Sketcher.Constraint("Equal", 15, 17))
sketch8.addConstraint(Sketcher.Constraint("Equal", 19, 21))
sketch8.addConstraint(Sketcher.Constraint("Equal", 23, 25))
sketch8.addConstraint(Sketcher.Constraint("Equal", 27, 29))
sketch8.addConstraint(Sketcher.Constraint("Equal", 35, 37))
sketch8.addConstraint(Sketcher.Constraint("Equal", 39, 41))
sketch8.addConstraint(Sketcher.Constraint("Equal", 43, 45))
sketch8.addConstraint(Sketcher.Constraint("Equal", 47, 49))
sketch8.addConstraint(Sketcher.Constraint("Equal", 51, 53))
sketch8.addConstraint(Sketcher.Constraint("Horizontal", 33, 3, 37, 3))
sketch8.addConstraint(Sketcher.Constraint("Horizontal", 35, 3, 39, 3))
sketch8.addConstraint(Sketcher.Constraint("Horizontal", 41, 3, 45, 3))
sketch8.addConstraint(Sketcher.Constraint("Horizontal", 43, 3, 47, 3))
sketch8.addConstraint(Sketcher.Constraint("Horizontal", 45, 3, 49, 3))
sketch8.addConstraint(Sketcher.Constraint("Horizontal", 47, 3, 51, 3))
sketch8.addConstraint(Sketcher.Constraint("Horizontal", 49, 3, 53, 3))
sketch8.addConstraint(Sketcher.Constraint("Horizontal", 51, 3, 55, 3))
sketch8.addConstraint(Sketcher.Constraint("Vertical", 1, 3, 5, 3))
sketch8.addConstraint(Sketcher.Constraint("Vertical", 3, 3, 7, 3))
sketch8.addConstraint(Sketcher.Constraint("Vertical", 5, 3, 9, 3))
sketch8.addConstraint(Sketcher.Constraint("Vertical", 7, 3, 11, 3))
sketch8.addConstraint(Sketcher.Constraint("Vertical", 9, 3, 13, 3))
sketch8.addConstraint(Sketcher.Constraint("Vertical", 11, 3, 15, 3))
sketch8.addConstraint(Sketcher.Constraint("Vertical", 13, 3, 17, 3))
sketch8.addConstraint(Sketcher.Constraint("Vertical", 15, 3, 19, 3))
sketch8.addConstraint(Sketcher.Constraint("Vertical", 17, 3, 21, 3))
sketch8.addConstraint(Sketcher.Constraint("Vertical", 19, 3, 23, 3))
sketch8.addConstraint(Sketcher.Constraint("Vertical", 21, 3, 25, 3))
sketch8.addConstraint(Sketcher.Constraint("Vertical", 23, 3, 27, 3))
sketch8.addConstraint(Sketcher.Constraint("Vertical", 25, 3, 29, 3))
sketch8.addConstraint(Sketcher.Constraint("Vertical", 27, 3, 31, 3))
sketch8.addConstraint(Sketcher.Constraint("Radius", 33, Q("3.5 mm")))
sketch8.addConstraint(Sketcher.Constraint("DistanceX", 0, 1, 0, 2, Q("85 mm")))
sketch8.addConstraint(Sketcher.Constraint("Radius", 1, Q("3.25 mm")))
sketch8.addConstraint(Sketcher.Constraint("DistanceY", 32, 1, 32, 2, Q("47.5 mm")))
sketch8.addConstraint(Sketcher.Constraint("DistanceY", 40, 1, 40, 2, Q("61.5 mm")))
sketch8.addConstraint(Sketcher.Constraint("DistanceY", 35, 3, -1, 1, Q("169 mm")))
sketch8.addConstraint(Sketcher.Constraint("DistanceY", 43, 3, -1, 1, Q("176 mm")))
sketch8.addConstraint(Sketcher.Constraint("DistanceY", 12, 2, -1, 1, Q("95 mm")))
sketch8.addConstraint(Sketcher.Constraint("DistanceX", -1, 1, 44, 2, Q("62 mm")))
sketch8.addConstraint(Sketcher.Constraint("DistanceX", -1, 1, 1, 3, Q("235.5 mm")))
sketch8.addConstraint(Sketcher.Constraint("DistanceY", 29, 3, -1, 1, Q("140.5 mm")))
sketch8.addConstraint(Sketcher.Constraint("DistanceX", -1, 1, 33, 3, Q("80.3 mm")))
sketch8.addConstraint(Sketcher.Constraint("DistanceX", -1, 1, 37, 3, Q("25.8 mm")))
sketch8.addConstraint(Sketcher.Constraint("DistanceX", -1, 1, 41, 3, Q("69.4 mm")))
sketch8.addConstraint(Sketcher.Constraint("DistanceX", -1, 1, 49, 3, Q("47.6 mm")))
sketch8.addConstraint(Sketcher.Constraint("DistanceX", -1, 1, 53, 3, Q("36.7 mm")))
sketch8.addConstraint(Sketcher.Constraint("DistanceY", 5, 3, -1, 1, Q("67.375 mm")))
sketch8.addConstraint(Sketcher.Constraint("DistanceY", 21, 3, -1, 1, Q("116.125 mm")))
sketch8.addConstraint(Sketcher.Constraint("DistanceY", 1, 3, -1, 1, Q("55.1875 mm")))
sketch8.addConstraint(Sketcher.Constraint("DistanceY", 9, 3, -1, 1, Q("79.5625 mm")))
sketch8.addConstraint(Sketcher.Constraint("DistanceY", 17, 3, -1, 1, Q("103.9375 mm")))
sketch8.addConstraint(Sketcher.Constraint("DistanceY", 25, 3, -1, 1, Q("128.3125 mm")))
pocket7 = doc.addObject("PartDesign::Pocket", "Pocket006")
body.addObject(pocket7)
pocket7.Profile = sketch8
pocket7.Length = 1.8
doc.recompute()

fillet = doc.addObject("PartDesign::Fillet", "Fillet")
body.addObject(fillet)
fillet.Base = (pocket7, edges_at(pocket7, [
    (0.9, 260.5, 0),
    (0.9, 260.5, -188),
    (0.9, 0, -188),
    (0.9, 0, 0),
]))
fillet.Radius = 1.5
doc.recompute()

fillet2 = doc.addObject("PartDesign::Fillet", "Fillet001")
body.addObject(fillet2)
fillet2.Base = (fillet, edges_at(fillet, [
    (0.9, 107.3, -159.6),
    (0.9, 129.3, -159.6),
    (0.9, 129.3, -177.6),
    (0.9, 107.3, -177.6),
    (0.9, 89.8, -154.725),
    (0.9, 101.8, -154.725),
    (0.9, 101.8, -34.725),
    (0.9, 89.8, -34.725),
]))
fillet2.Radius = 0.8

doc.recompute()
